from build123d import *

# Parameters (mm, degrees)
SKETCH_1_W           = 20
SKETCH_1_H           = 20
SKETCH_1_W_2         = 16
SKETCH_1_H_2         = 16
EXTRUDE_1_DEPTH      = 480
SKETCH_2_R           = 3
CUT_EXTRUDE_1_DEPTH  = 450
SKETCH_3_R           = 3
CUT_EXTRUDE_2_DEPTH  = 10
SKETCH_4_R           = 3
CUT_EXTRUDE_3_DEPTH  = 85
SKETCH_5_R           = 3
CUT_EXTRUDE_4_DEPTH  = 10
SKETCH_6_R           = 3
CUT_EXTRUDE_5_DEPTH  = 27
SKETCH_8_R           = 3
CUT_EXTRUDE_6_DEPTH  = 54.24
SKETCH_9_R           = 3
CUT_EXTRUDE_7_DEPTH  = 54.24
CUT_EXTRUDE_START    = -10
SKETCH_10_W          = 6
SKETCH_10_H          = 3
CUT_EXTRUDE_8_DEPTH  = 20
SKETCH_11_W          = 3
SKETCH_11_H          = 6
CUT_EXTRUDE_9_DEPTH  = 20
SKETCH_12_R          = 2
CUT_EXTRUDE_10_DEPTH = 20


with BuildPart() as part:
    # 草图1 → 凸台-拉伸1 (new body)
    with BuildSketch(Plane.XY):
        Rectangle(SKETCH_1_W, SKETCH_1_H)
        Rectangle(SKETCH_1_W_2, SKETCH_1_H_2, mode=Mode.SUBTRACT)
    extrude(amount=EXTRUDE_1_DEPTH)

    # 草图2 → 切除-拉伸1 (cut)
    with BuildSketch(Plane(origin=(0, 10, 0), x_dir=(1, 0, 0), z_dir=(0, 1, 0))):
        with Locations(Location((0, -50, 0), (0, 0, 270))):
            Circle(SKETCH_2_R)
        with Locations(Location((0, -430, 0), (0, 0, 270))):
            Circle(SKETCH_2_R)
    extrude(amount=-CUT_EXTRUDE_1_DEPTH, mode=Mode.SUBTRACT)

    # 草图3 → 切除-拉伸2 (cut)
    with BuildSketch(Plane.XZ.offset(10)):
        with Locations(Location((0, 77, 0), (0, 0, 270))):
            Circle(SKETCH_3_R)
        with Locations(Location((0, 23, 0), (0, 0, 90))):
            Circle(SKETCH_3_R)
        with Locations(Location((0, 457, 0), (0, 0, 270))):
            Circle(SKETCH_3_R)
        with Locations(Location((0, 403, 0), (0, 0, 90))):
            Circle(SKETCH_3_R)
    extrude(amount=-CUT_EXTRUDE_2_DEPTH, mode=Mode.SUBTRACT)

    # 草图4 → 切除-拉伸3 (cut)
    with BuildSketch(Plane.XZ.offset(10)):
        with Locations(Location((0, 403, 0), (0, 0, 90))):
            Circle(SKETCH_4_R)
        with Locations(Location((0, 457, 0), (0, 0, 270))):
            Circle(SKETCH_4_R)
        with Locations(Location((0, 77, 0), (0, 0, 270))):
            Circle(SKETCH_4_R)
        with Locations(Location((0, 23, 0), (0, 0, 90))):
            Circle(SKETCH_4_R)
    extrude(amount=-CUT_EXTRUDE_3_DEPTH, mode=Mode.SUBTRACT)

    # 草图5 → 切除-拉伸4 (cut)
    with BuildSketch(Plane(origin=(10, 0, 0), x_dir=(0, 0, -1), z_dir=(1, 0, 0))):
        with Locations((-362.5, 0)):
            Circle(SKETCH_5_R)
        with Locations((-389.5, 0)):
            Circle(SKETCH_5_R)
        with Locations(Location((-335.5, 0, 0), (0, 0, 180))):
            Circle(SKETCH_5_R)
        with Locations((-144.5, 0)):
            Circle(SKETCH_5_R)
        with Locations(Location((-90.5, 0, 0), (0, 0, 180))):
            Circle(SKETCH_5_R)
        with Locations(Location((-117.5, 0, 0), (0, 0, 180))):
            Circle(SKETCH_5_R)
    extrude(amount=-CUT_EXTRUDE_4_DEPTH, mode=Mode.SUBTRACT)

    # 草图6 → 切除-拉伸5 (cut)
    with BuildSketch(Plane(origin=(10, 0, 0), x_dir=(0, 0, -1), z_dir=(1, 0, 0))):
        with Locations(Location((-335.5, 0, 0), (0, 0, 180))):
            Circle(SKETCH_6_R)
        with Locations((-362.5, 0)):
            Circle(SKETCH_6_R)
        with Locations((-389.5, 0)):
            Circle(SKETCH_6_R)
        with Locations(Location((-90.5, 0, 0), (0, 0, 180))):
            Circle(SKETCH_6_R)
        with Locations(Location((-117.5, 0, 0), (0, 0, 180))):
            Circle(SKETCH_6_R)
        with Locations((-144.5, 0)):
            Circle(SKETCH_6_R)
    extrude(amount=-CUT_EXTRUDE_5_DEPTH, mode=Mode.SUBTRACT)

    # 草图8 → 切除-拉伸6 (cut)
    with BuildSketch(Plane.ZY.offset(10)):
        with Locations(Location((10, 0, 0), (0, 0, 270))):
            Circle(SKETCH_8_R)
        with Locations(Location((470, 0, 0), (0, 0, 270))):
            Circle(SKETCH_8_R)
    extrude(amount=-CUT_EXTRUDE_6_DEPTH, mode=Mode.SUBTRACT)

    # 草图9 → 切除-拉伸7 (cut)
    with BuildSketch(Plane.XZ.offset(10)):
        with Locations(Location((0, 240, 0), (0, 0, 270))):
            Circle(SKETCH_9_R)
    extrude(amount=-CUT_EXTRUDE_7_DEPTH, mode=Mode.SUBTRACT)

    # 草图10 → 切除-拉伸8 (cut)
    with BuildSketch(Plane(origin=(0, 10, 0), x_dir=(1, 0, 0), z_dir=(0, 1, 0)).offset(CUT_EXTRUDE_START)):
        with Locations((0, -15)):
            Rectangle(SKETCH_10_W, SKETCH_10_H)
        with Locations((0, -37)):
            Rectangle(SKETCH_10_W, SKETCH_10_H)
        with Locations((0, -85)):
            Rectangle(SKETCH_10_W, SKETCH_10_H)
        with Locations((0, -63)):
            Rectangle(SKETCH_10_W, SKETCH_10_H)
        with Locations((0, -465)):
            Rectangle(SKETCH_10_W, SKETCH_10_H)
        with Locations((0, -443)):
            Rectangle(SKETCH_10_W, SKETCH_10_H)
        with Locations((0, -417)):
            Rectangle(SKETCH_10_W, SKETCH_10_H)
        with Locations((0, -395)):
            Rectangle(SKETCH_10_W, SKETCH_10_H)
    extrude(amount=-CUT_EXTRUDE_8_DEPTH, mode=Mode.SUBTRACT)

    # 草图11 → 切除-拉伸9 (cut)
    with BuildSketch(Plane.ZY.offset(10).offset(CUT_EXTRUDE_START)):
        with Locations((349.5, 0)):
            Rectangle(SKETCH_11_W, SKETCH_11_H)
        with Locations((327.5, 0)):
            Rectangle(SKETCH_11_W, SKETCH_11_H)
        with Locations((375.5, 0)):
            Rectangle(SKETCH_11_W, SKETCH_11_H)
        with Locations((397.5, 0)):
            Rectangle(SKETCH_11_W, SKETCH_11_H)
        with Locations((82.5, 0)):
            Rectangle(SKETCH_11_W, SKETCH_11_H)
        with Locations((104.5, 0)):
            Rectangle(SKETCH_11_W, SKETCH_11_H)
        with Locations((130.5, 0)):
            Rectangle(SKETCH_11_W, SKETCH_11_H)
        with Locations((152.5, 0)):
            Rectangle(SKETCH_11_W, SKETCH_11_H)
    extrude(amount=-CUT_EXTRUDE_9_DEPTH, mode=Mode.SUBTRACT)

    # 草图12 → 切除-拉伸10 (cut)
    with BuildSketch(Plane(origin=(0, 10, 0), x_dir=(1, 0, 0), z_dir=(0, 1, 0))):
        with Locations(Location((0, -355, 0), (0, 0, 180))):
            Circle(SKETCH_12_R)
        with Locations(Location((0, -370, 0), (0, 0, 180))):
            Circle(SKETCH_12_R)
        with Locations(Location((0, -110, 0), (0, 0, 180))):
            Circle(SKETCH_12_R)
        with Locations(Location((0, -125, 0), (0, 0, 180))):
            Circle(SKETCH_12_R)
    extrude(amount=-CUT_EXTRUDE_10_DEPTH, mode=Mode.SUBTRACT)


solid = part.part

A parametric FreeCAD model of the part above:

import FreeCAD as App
import Part
import Sketcher


def add_polygon(sketch, points):
    """Adds a closed chain of lines whose ends are joined by coincident constraints."""
    first, n = sketch.GeometryCount, len(points)
    for a, b in zip(points, points[1:] + points[:1]):
        sketch.addGeometry(Part.LineSegment(App.Vector(*a, 0), App.Vector(*b, 0)), False)
    for i in range(n):
        sketch.addConstraint(Sketcher.Constraint("Coincident", first + i, 2, first + (i + 1) % n, 1))

doc = App.newDocument("Part")
body = doc.addObject("PartDesign::Body", "Body")

sketch1 = body.newObject("Sketcher::SketchObject", "Sketch")
sketch1.AttachmentSupport = (doc.getObject("XY_Plane"), [""])
sketch1.MapMode = "FlatFace"
add_polygon(sketch1, [(-10, 10), (-10, -10), (10, -10), (10, 10)])
add_polygon(sketch1, [(8, -8), (-8, -8), (-8, 8), (8, 8)])
sketch1.addConstraint([
    Sketcher.Constraint("Vertical", 0),
    Sketcher.Constraint("Horizontal", 1),
    Sketcher.Constraint("Vertical", 2),
    Sketcher.Constraint("Horizontal", 3),
    Sketcher.Constraint("Horizontal", 4),
    Sketcher.Constraint("Vertical", 5),
    Sketcher.Constraint("Horizontal", 6),
    Sketcher.Constraint("Vertical", 7),
    Sketcher.Constraint("Symmetric", 0, 2, 2, 2, -1, 1),
    Sketcher.Constraint("Symmetric", 4, 2, 6, 2, -1, 1),
    Sketcher.Constraint("Equal", 3, 0),
    Sketcher.Constraint("Equal", 6, 5),
    Sketcher.Constraint("DistanceX", 1, 1, 1, 2, 20.0),
    Sketcher.Constraint("DistanceX", 4, 2, 4, 1, 16.0),
])
pad1 = body.newObject("PartDesign::Pad", "Pad")
pad1.Profile = sketch1
pad1.Length = 480

sketch2 = body.newObject("Sketcher::SketchObject", "Sketch001")
sketch2.AttachmentSupport = (doc.getObject("XZ_Plane"), [""])
sketch2.MapMode = "FlatFace"
sketch2.AttachmentOffset = App.Placement(App.Vector(0, 0, -10), App.Rotation())
sketch2.addGeometry([
    Part.Circle(App.Vector(0, 50, 0), App.Vector(0, 0, 1), 3),
    Part.Circle(App.Vector(0, 430, 0), App.Vector(0, 0, 1), 3),
], False)
sketch2.addConstraint([
    Sketcher.Constraint("Equal", 0, 1),
    Sketcher.Constraint("PointOnObject", 0, 3, -2),
    Sketcher.Constraint("PointOnObject", 1, 3, -2),
    Sketcher.Constraint("Diameter", 0, 6.0),
    Sketcher.Constraint("DistanceY", -1, 1, 0, 3, 50.0),
    Sketcher.Constraint("DistanceY", -1, 1, 1, 3, 430.0),
])
pocket1 = body.newObject("PartDesign::Pocket", "Pocket")
pocket1.Profile = sketch2
pocket1.Length = 450
pocket1.Reversed = True

sketch3 = body.newObject("Sketcher::SketchObject", "Sketch002")
sketch3.AttachmentSupport = (doc.getObject("XZ_Plane"), [""])
sketch3.MapMode = "FlatFace"
sketch3.AttachmentOffset = App.Placement(App.Vector(0, 0, 10), App.Rotation())
sketch3.addGeometry([
    Part.Circle(App.Vector(0, 77, 0), App.Vector(0, 0, 1), 3),
    Part.Circle(App.Vector(0, 23, 0), App.Vector(0, 0, 1), 3),
    Part.Circle(App.Vector(0, 457, 0), App.Vector(0, 0, 1), 3),
    Part.Circle(App.Vector(0, 403, 0), App.Vector(0, 0, 1), 3),
], False)
sketch3.addConstraint([
    Sketcher.Constraint("Equal", 0, 1),
    Sketcher.Constraint("Equal", 1, 2),
    Sketcher.Constraint("Equal", 2, 3),
    Sketcher.Constraint("PointOnObject", 0, 3, -2),
    Sketcher.Constraint("PointOnObject", 1, 3, -2),
    Sketcher.Constraint("PointOnObject", 2, 3, -2),
    Sketcher.Constraint("PointOnObject", 3, 3, -2),
    Sketcher.Constraint("Diameter", 0, 6.0),
    Sketcher.Constraint("DistanceY", -1, 1, 0, 3, 77.0),
    Sketcher.Constraint("DistanceY", -1, 1, 1, 3, 23.0),
    Sketcher.Constraint("DistanceY", -1, 1, 2, 3, 457.0),
    Sketcher.Constraint("DistanceY", -1, 1, 3, 3, 403.0),
])
pocket2 = body.newObject("PartDesign::Pocket", "Pocket001")
pocket2.Profile = sketch3
pocket2.Length = 10

sketch4 = body.newObject("Sketcher::SketchObject", "Sketch003")
sketch4.AttachmentSupport = (doc.getObject("XZ_Plane"), [""])
sketch4.MapMode = "FlatFace"
sketch4.AttachmentOffset = App.Placement(App.Vector(0, 0, 10), App.Rotation())
sketch4.addGeometry([
    Part.Circle(App.Vector(0, 403, 0), App.Vector(0, 0, 1), 3),
    Part.Circle(App.Vector(0, 457, 0), App.Vector(0, 0, 1), 3),
    Part.Circle(App.Vector(0, 77, 0), App.Vector(0, 0, 1), 3),
    Part.Circle(App.Vector(0, 23, 0), App.Vector(0, 0, 1), 3),
], False)
sketch4.addConstraint([
    Sketcher.Constraint("Equal", 0, 1),
    Sketcher.Constraint("Equal", 1, 2),
    Sketcher.Constraint("Equal", 2, 3),
    Sketcher.Constraint("PointOnObject", 0, 3, -2),
    Sketcher.Constraint("PointOnObject", 1, 3, -2),
    Sketcher.Constraint("PointOnObject", 2, 3, -2),
    Sketcher.Constraint("PointOnObject", 3, 3, -2),
    Sketcher.Constraint("Diameter", 0, 6.0),
    Sketcher.Constraint("DistanceY", -1, 1, 0, 3, 403.0),
    Sketcher.Constraint("DistanceY", -1, 1, 1, 3, 457.0),
    Sketcher.Constraint("DistanceY", -1, 1, 2, 3, 77.0),
    Sketcher.Constraint("DistanceY", -1, 1, 3, 3, 23.0),
])
pocket3 = body.newObject("PartDesign::Pocket", "Pocket002")
pocket3.Profile = sketch4
pocket3.Length = 85

sketch5 = body.newObject("Sketcher::SketchObject", "Sketch004")
sketch5.AttachmentSupport = (doc.getObject("YZ_Plane"), [""])
sketch5.MapMode = "FlatFace"
sketch5.AttachmentOffset = App.Placement(App.Vector(0, 0, 10), App.Rotation())
sketch5.addGeometry([
    Part.Circle(App.Vector(0, 362.5, 0), App.Vector(0, 0, 1), 3),
    Part.Circle(App.Vector(0, 389.5, 0), App.Vector(0, 0, 1), 3),
    Part.Circle(App.Vector(0, 335.5, 0), App.Vector(0, 0, 1), 3),
    Part.Circle(App.Vector(0, 144.5, 0), App.Vector(0, 0, 1), 3),
    Part.Circle(App.Vector(0, 90.5, 0), App.Vector(0, 0, 1), 3),
    Part.Circle(App.Vector(0, 117.5, 0), App.Vector(0, 0, 1), 3),
], False)
sketch5.addConstraint([
    Sketcher.Constraint("Equal", 0, 1),
    Sketcher.Constraint("Equal", 1, 2),
    Sketcher.Constraint("Equal", 2, 3),
    Sketcher.Constraint("Equal", 3, 4),
    Sketcher.Constraint("Equal", 4, 5),
    Sketcher.Constraint("PointOnObject", 0, 3, -2),
    Sketcher.Constraint("PointOnObject", 1, 3, -2),
    Sketcher.Constraint("PointOnObject", 2, 3, -2),
    Sketcher.Constraint("PointOnObject", 3, 3, -2),
    Sketcher.Constraint("PointOnObject", 4, 3, -2),
    Sketcher.Constraint("PointOnObject", 5, 3, -2),
    Sketcher.Constraint("Diameter", 0, 6.0),
    Sketcher.Constraint("DistanceY", 0, 3, 1, 3, 27.0),
    Sketcher.Constraint("DistanceY", 2, 3, 0, 3, 27.0),
    Sketcher.Constraint("DistanceY", 3, 3, 2, 3, 191.0),
    Sketcher.Constraint("DistanceY", 4, 3, 3, 3, 54.0),
    Sketcher.Constraint("DistanceY", 5, 3, 3, 3, 27.0),
    Sketcher.Constraint("DistanceY", -1, 1, 0, 3, 362.5),
])
pocket4 = body.newObject("PartDesign::Pocket", "Pocket003")
pocket4.Profile = sketch5
pocket4.Length = 10

sketch6 = body.newObject("Sketcher::SketchObject", "Sketch005")
sketch6.AttachmentSupport = (doc.getObject("YZ_Plane"), [""])
sketch6.MapMode = "FlatFace"
sketch6.AttachmentOffset = App.Placement(App.Vector(0, 0, 10), App.Rotation())
sketch6.addGeometry([
    Part.Circle(App.Vector(0, 335.5, 0), App.Vector(0, 0, 1), 3),
    Part.Circle(App.Vector(0, 362.5, 0), App.Vector(0, 0, 1), 3),
    Part.Circle(App.Vector(0, 389.5, 0), App.Vector(0, 0, 1), 3),
    Part.Circle(App.Vector(0, 90.5, 0), App.Vector(0, 0, 1), 3),
    Part.Circle(App.Vector(0, 117.5, 0), App.Vector(0, 0, 1), 3),
    Part.Circle(App.Vector(0, 144.5, 0), App.Vector(0, 0, 1), 3),
], False)
sketch6.addConstraint([
    Sketcher.Constraint("Equal", 0, 1),
    Sketcher.Constraint("Equal", 1, 2),
    Sketcher.Constraint("Equal", 2, 3),
    Sketcher.Constraint("Equal", 3, 4),
    Sketcher.Constraint("Equal", 4, 5),
    Sketcher.Constraint("PointOnObject", 0, 3, -2),
    Sketcher.Constraint("PointOnObject", 1, 3, -2),
    Sketcher.Constraint("PointOnObject", 2, 3, -2),
    Sketcher.Constraint("PointOnObject", 3, 3, -2),
    Sketcher.Constraint("PointOnObject", 4, 3, -2),
    Sketcher.Constraint("PointOnObject", 5, 3, -2),
    Sketcher.Constraint("Diameter", 0, 6.0),
    Sketcher.Constraint("DistanceY", 0, 3, 1, 3, 27.0),
    Sketcher.Constraint("DistanceY", 1, 3, 2, 3, 27.0),
    Sketcher.Constraint("DistanceY", 3, 3, 0, 3, 245.0),
    Sketcher.Constraint("DistanceY", 3, 3, 4, 3, 27.0),
    Sketcher.Constraint("DistanceY", 4, 3, 5, 3, 27.0),
    Sketcher.Constraint("DistanceY", -1, 1, 0, 3, 335.5),
])
pocket5 = body.newObject("PartDesign::Pocket", "Pocket004")
pocket5.Profile = sketch6
pocket5.Length = 27

sketch7 = body.newObject("Sketcher::SketchObject", "Sketch006")
sketch7.AttachmentSupport = (doc.getObject("YZ_Plane"), [""])
sketch7.MapMode = "FlatFace"
sketch7.AttachmentOffset = App.Placement(App.Vector(0, 0, -10), App.Rotation())
sketch7.addGeometry([
    Part.Circle(App.Vector(0, 10, 0), App.Vector(0, 0, 1), 3),
    Part.Circle(App.Vector(0, 470, 0), App.Vector(0, 0, 1), 3),
], False)
sketch7.addConstraint([
    Sketcher.Constraint("Equal", 0, 1),
    Sketcher.Constraint("PointOnObject", 0, 3, -2),
    Sketcher.Constraint("PointOnObject", 1, 3, -2),
    Sketcher.Constraint("Diameter", 0, 6.0),
    Sketcher.Constraint("DistanceY", -1, 1, 0, 3, 10.0),
    Sketcher.Constraint("DistanceY", -1, 1, 1, 3, 470.0),
])
pocket6 = body.newObject("PartDesign::Pocket", "Pocket005")
pocket6.Profile = sketch7
pocket6.Length = 54.24
pocket6.Reversed = True

sketch8 = body.newObject("Sketcher::SketchObject", "Sketch007")
sketch8.AttachmentSupport = (doc.getObject("XZ_Plane"), [""])
sketch8.MapMode = "FlatFace"
sketch8.AttachmentOffset = App.Placement(App.Vector(0, 0, 10), App.Rotation())
sketch8.addGeometry(Part.Circle(App.Vector(0, 240, 0), App.Vector(0, 0, 1), 3), False)
sketch8.addConstraint([
    Sketcher.Constraint("PointOnObject", 0, 3, -2),
    Sketcher.Constraint("Diameter", 0, 6.0),
    Sketcher.Constraint("DistanceY", -1, 1, 0, 3, 240.0),
])
pocket7 = body.newObject("PartDesign::Pocket", "Pocket006")
pocket7.Profile = sketch8
pocket7.Length = 54.24

sketch9 = body.newObject("Sketcher::SketchObject", "Sketch008")
sketch9.AttachmentSupport = (doc.getObject("XZ_Plane"), [""])
sketch9.MapMode = "FlatFace"
add_polygon(sketch9, [(-3, 13.5), (-3, 16.5), (3, 16.5), (3, 13.5)])
add_polygon(sketch9, [(-3, 35.5), (-3, 38.5), (3, 38.5), (3, 35.5)])
add_polygon(sketch9, [(-3, 83.5), (-3, 86.5), (3, 86.5), (3, 83.5)])
add_polygon(sketch9, [(-3, 61.5), (-3, 64.5), (3, 64.5), (3, 61.5)])
add_polygon(sketch9, [(-3, 463.5), (-3, 466.5), (3, 466.5), (3, 463.5)])
add_polygon(sketch9, [(-3, 441.5), (-3, 444.5), (3, 444.5), (3, 441.5)])
add_polygon(sketch9, [(-3, 415.5), (-3, 418.5), (3, 418.5), (3, 415.5)])
add_polygon(sketch9, [(-3, 393.5), (-3, 396.5), (3, 396.5), (3, 393.5)])
sketch9.addConstraint([
    Sketcher.Constraint("Vertical", 0),
    Sketcher.Constraint("Horizontal", 1),
    Sketcher.Constraint("Vertical", 2),
    Sketcher.Constraint("Horizontal", 3),
    Sketcher.Constraint("Vertical", 4),
    Sketcher.Constraint("Horizontal", 5),
    Sketcher.Constraint("Vertical", 6),
    Sketcher.Constraint("Horizontal", 7),
    Sketcher.Constraint("Vertical", 8),
    Sketcher.Constraint("Horizontal", 9),
    Sketcher.Constraint("Vertical", 10),
    Sketcher.Constraint("Horizontal", 11),
    Sketcher.Constraint("Vertical", 12),
    Sketcher.Constraint("Horizontal", 13),
    Sketcher.Constraint("Vertical", 14),
    Sketcher.Constraint("Horizontal", 15),
    Sketcher.Constraint("Vertical", 16),
    Sketcher.Constraint("Horizontal", 17),
    Sketcher.Constraint("Vertical", 18),
    Sketcher.Constraint("Horizontal", 19),
    Sketcher.Constraint("Vertical", 20),
    Sketcher.Constraint("Horizontal", 21),
    Sketcher.Constraint("Vertical", 22),
    Sketcher.Constraint("Horizontal", 23),
    Sketcher.Constraint("Vertical", 24),
    Sketcher.Constraint("Horizontal", 25),
    Sketcher.Constraint("Vertical", 26),
    Sketcher.Constraint("Horizontal", 27),
    Sketcher.Constraint("Vertical", 28),
    Sketcher.Constraint("Horizontal", 29),
    Sketcher.Constraint("Vertical", 30),
    Sketcher.Constraint("Horizontal", 31),
    Sketcher.Constraint("Vertical", 3, 2, 4, 2),
    Sketcher.Constraint("Vertical", 2, 2, 5, 2),
    Sketcher.Constraint("Vertical", 7, 2, 8, 2),
    Sketcher.Constraint("Vertical", 6, 2, 9, 2),
    Sketcher.Constraint("Vertical", 11, 2, 12, 2),
    Sketcher.Constraint("Vertical", 10, 2, 13, 2),
    Sketcher.Constraint("Vertical", 15, 2, 16, 2),
    Sketcher.Constraint("Vertical", 14, 2, 17, 2),
    Sketcher.Constraint("Vertical", 19, 2, 20, 2),
    Sketcher.Constraint("Vertical", 18, 2, 21, 2),
    Sketcher.Constraint("Vertical", 23, 2, 24, 2),
    Sketcher.Constraint("Vertical", 22, 2, 25, 2),
    Sketcher.Constraint("Vertical", 27, 2, 28, 2),
    Sketcher.Constraint("Vertical", 26, 2, 29, 2),
    Sketcher.Constraint("Equal", 2, 4),
    Sketcher.Constraint("Equal", 6, 8),
    Sketcher.Constraint("Equal", 10, 12),
    Sketcher.Constraint("Equal", 14, 16),
    Sketcher.Constraint("Equal", 18, 20),
    Sketcher.Constraint("Equal", 22, 24),
    Sketcher.Constraint("Equal", 26, 28),
    Sketcher.Constraint("DistanceX", 1, 1, 1, 2, 6.0),
    Sketcher.Constraint("DistanceY", 0, 1, 0, 2, 3.0),
    Sketcher.Constraint("DistanceX", 0, 2, -1, 1, 3.0),
    Sketcher.Constraint("DistanceY", 0, 2, 4, 2, 22.0),
    Sketcher.Constraint("DistanceY", 4, 2, 8, 2, 48.0),
    Sketcher.Constraint("DistanceY", 12, 2, 11, 2, 19.0),
    Sketcher.Constraint("DistanceY", 8, 2, 16, 2, 380.0),
    Sketcher.Constraint("DistanceY", 20, 2, 19, 2, 19.0),
    Sketcher.Constraint("DistanceY", 24, 2, 23, 2, 23.0),
    Sketcher.Constraint("DistanceY", 28, 2, 27, 2, 19.0),
    Sketcher.Constraint("DistanceY", -1, 1, 0, 2, 16.5),
])
pocket8 = body.newObject("PartDesign::Pocket", "Pocket007")
pocket8.Profile = sketch9
pocket8.Length = 20
pocket8.Reversed = True

sketch10 = body.newObject("Sketcher::SketchObject", "Sketch009")
sketch10.AttachmentSupport = (doc.getObject("YZ_Plane"), [""])
sketch10.MapMode = "FlatFace"
add_polygon(sketch10, [(3, 348), (-3, 348), (-3, 351), (3, 351)])
add_polygon(sketch10, [(3, 326), (-3, 326), (-3, 329), (3, 329)])
add_polygon(sketch10, [(3, 374), (-3, 374), (-3, 377), (3, 377)])
add_polygon(sketch10, [(3, 396), (-3, 396), (-3, 399), (3, 399)])
add_polygon(sketch10, [(3, 81), (-3, 81), (-3, 84), (3, 84)])
add_polygon(sketch10, [(3, 103), (-3, 103), (-3, 106), (3, 106)])
add_polygon(sketch10, [(3, 129), (-3, 129), (-3, 132), (3, 132)])
add_polygon(sketch10, [(3, 151), (-3, 151), (-3, 154), (3, 154)])
sketch10.addConstraint([
    Sketcher.Constraint("Horizontal", 0),
    Sketcher.Constraint("Vertical", 1),
    Sketcher.Constraint("Horizontal", 2),
    Sketcher.Constraint("Vertical", 3),
    Sketcher.Constraint("Horizontal", 4),
    Sketcher.Constraint("Vertical", 5),
    Sketcher.Constraint("Horizontal", 6),
    Sketcher.Constraint("Vertical", 7),
    Sketcher.Constraint("Horizontal", 8),
    Sketcher.Constraint("Vertical", 9),
    Sketcher.Constraint("Horizontal", 10),
    Sketcher.Constraint("Vertical", 11),
    Sketcher.Constraint("Horizontal", 12),
    Sketcher.Constraint("Vertical", 13),
    Sketcher.Constraint("Horizontal", 14),
    Sketcher.Constraint("Vertical", 15),
    Sketcher.Constraint("Horizontal", 16),
    Sketcher.Constraint("Vertical", 17),
    Sketcher.Constraint("Horizontal", 18),
    Sketcher.Constraint("Vertical", 19),
    Sketcher.Constraint("Horizontal", 20),
    Sketcher.Constraint("Vertical", 21),
    Sketcher.Constraint("Horizontal", 22),
    Sketcher.Constraint("Vertical", 23),
    Sketcher.Constraint("Horizontal", 24),
    Sketcher.Constraint("Vertical", 25),
    Sketcher.Constraint("Horizontal", 26),
    Sketcher.Constraint("Vertical", 27),
    Sketcher.Constraint("Horizontal", 28),
    Sketcher.Constraint("Vertical", 29),
    Sketcher.Constraint("Horizontal", 30),
    Sketcher.Constraint("Vertical", 31),
    Sketcher.Constraint("Vertical", 1, 2, 4, 2),
    Sketcher.Constraint("Vertical", 3, 2, 6, 2),
    Sketcher.Constraint("Vertical", 5, 2, 8, 2),
    Sketcher.Constraint("Vertical", 7, 2, 10, 2),
    Sketcher.Constraint("Vertical", 9, 2, 12, 2),
    Sketcher.Constraint("Vertical", 11, 2, 14, 2),
    Sketcher.Constraint("Vertical", 13, 2, 16, 2),
    Sketcher.Constraint("Vertical", 15, 2, 18, 2),
    Sketcher.Constraint("Vertical", 17, 2, 20, 2),
    Sketcher.Constraint("Vertical", 19, 2, 22, 2),
    Sketcher.Constraint("Vertical", 21, 2, 24, 2),
    Sketcher.Constraint("Vertical", 23, 2, 26, 2),
    Sketcher.Constraint("Vertical", 25, 2, 28, 2),
    Sketcher.Constraint("Vertical", 27, 2, 30, 2),
    Sketcher.Constraint("Equal", 3, 5),
    Sketcher.Constraint("Equal", 7, 9),
    Sketcher.Constraint("Equal", 11, 13),
    Sketcher.Constraint("Equal", 15, 17),
    Sketcher.Constraint("Equal", 19, 21),
    Sketcher.Constraint("Equal", 23, 25),
    Sketcher.Constraint("Equal", 27, 29),
    Sketcher.Constraint("DistanceX", 0, 2, 0, 1, 6.0),
    Sketcher.Constraint("DistanceY", 1, 1, 1, 2, 3.0),
    Sketcher.Constraint("DistanceX", 0, 2, -1, 1, 3.0),
    Sketcher.Constraint("DistanceY", -1, 1, 0, 2, 348.0),
    Sketcher.Constraint("DistanceY", -1, 1, 4, 2, 326.0),
    Sketcher.Constraint("DistanceY", -1, 1, 8, 2, 374.0),
    Sketcher.Constraint("DistanceY", -1, 1, 12, 2, 396.0),
    Sketcher.Constraint("DistanceY", -1, 1, 16, 2, 81.0),
    Sketcher.Constraint("DistanceY", -1, 1, 20, 2, 103.0),
    Sketcher.Constraint("DistanceY", -1, 1, 24, 2, 129.0),
    Sketcher.Constraint("DistanceY", -1, 1, 28, 2, 151.0),
])
pocket9 = body.newObject("PartDesign::Pocket", "Pocket008")
pocket9.Profile = sketch10
pocket9.Length = 20
pocket9.Reversed = True

sketch11 = body.newObject("Sketcher::SketchObject", "Sketch010")
sketch11.AttachmentSupport = (doc.getObject("XZ_Plane"), [""])
sketch11.MapMode = "FlatFace"
sketch11.AttachmentOffset = App.Placement(App.Vector(0, 0, -10), App.Rotation())
sketch11.addGeometry([
    Part.Circle(App.Vector(0, 355, 0), App.Vector(0, 0, 1), 2),
    Part.Circle(App.Vector(0, 370, 0), App.Vector(0, 0, 1), 2),
    Part.Circle(App.Vector(0, 110, 0), App.Vector(0, 0, 1), 2),
    Part.Circle(App.Vector(0, 125, 0), App.Vector(0, 0, 1), 2),
], False)
sketch11.addConstraint([
    Sketcher.Constraint("Equal", 0, 1),
    Sketcher.Constraint("Equal", 1, 2),
    Sketcher.Constraint("Equal", 2, 3),
    Sketcher.Constraint("PointOnObject", 0, 3, -2),
    Sketcher.Constraint("PointOnObject", 1, 3, -2),
    Sketcher.Constraint("PointOnObject", 2, 3, -2),
    Sketcher.Constraint("PointOnObject", 3, 3, -2),
    Sketcher.Constraint("Diameter", 0, 4.0),
    Sketcher.Constraint("DistanceY", -1, 1, 0, 3, 355.0),
    Sketcher.Constraint("DistanceY", -1, 1, 1, 3, 370.0),
    Sketcher.Constraint("DistanceY", -1, 1, 2, 3, 110.0),
    Sketcher.Constraint("DistanceY", -1, 1, 3, 3, 125.0),
])
pocket10 = body.newObject("PartDesign::Pocket", "Pocket009")
pocket10.Profile = sketch11
pocket10.Length = 20
pocket10.Reversed = True

doc.recompute()
